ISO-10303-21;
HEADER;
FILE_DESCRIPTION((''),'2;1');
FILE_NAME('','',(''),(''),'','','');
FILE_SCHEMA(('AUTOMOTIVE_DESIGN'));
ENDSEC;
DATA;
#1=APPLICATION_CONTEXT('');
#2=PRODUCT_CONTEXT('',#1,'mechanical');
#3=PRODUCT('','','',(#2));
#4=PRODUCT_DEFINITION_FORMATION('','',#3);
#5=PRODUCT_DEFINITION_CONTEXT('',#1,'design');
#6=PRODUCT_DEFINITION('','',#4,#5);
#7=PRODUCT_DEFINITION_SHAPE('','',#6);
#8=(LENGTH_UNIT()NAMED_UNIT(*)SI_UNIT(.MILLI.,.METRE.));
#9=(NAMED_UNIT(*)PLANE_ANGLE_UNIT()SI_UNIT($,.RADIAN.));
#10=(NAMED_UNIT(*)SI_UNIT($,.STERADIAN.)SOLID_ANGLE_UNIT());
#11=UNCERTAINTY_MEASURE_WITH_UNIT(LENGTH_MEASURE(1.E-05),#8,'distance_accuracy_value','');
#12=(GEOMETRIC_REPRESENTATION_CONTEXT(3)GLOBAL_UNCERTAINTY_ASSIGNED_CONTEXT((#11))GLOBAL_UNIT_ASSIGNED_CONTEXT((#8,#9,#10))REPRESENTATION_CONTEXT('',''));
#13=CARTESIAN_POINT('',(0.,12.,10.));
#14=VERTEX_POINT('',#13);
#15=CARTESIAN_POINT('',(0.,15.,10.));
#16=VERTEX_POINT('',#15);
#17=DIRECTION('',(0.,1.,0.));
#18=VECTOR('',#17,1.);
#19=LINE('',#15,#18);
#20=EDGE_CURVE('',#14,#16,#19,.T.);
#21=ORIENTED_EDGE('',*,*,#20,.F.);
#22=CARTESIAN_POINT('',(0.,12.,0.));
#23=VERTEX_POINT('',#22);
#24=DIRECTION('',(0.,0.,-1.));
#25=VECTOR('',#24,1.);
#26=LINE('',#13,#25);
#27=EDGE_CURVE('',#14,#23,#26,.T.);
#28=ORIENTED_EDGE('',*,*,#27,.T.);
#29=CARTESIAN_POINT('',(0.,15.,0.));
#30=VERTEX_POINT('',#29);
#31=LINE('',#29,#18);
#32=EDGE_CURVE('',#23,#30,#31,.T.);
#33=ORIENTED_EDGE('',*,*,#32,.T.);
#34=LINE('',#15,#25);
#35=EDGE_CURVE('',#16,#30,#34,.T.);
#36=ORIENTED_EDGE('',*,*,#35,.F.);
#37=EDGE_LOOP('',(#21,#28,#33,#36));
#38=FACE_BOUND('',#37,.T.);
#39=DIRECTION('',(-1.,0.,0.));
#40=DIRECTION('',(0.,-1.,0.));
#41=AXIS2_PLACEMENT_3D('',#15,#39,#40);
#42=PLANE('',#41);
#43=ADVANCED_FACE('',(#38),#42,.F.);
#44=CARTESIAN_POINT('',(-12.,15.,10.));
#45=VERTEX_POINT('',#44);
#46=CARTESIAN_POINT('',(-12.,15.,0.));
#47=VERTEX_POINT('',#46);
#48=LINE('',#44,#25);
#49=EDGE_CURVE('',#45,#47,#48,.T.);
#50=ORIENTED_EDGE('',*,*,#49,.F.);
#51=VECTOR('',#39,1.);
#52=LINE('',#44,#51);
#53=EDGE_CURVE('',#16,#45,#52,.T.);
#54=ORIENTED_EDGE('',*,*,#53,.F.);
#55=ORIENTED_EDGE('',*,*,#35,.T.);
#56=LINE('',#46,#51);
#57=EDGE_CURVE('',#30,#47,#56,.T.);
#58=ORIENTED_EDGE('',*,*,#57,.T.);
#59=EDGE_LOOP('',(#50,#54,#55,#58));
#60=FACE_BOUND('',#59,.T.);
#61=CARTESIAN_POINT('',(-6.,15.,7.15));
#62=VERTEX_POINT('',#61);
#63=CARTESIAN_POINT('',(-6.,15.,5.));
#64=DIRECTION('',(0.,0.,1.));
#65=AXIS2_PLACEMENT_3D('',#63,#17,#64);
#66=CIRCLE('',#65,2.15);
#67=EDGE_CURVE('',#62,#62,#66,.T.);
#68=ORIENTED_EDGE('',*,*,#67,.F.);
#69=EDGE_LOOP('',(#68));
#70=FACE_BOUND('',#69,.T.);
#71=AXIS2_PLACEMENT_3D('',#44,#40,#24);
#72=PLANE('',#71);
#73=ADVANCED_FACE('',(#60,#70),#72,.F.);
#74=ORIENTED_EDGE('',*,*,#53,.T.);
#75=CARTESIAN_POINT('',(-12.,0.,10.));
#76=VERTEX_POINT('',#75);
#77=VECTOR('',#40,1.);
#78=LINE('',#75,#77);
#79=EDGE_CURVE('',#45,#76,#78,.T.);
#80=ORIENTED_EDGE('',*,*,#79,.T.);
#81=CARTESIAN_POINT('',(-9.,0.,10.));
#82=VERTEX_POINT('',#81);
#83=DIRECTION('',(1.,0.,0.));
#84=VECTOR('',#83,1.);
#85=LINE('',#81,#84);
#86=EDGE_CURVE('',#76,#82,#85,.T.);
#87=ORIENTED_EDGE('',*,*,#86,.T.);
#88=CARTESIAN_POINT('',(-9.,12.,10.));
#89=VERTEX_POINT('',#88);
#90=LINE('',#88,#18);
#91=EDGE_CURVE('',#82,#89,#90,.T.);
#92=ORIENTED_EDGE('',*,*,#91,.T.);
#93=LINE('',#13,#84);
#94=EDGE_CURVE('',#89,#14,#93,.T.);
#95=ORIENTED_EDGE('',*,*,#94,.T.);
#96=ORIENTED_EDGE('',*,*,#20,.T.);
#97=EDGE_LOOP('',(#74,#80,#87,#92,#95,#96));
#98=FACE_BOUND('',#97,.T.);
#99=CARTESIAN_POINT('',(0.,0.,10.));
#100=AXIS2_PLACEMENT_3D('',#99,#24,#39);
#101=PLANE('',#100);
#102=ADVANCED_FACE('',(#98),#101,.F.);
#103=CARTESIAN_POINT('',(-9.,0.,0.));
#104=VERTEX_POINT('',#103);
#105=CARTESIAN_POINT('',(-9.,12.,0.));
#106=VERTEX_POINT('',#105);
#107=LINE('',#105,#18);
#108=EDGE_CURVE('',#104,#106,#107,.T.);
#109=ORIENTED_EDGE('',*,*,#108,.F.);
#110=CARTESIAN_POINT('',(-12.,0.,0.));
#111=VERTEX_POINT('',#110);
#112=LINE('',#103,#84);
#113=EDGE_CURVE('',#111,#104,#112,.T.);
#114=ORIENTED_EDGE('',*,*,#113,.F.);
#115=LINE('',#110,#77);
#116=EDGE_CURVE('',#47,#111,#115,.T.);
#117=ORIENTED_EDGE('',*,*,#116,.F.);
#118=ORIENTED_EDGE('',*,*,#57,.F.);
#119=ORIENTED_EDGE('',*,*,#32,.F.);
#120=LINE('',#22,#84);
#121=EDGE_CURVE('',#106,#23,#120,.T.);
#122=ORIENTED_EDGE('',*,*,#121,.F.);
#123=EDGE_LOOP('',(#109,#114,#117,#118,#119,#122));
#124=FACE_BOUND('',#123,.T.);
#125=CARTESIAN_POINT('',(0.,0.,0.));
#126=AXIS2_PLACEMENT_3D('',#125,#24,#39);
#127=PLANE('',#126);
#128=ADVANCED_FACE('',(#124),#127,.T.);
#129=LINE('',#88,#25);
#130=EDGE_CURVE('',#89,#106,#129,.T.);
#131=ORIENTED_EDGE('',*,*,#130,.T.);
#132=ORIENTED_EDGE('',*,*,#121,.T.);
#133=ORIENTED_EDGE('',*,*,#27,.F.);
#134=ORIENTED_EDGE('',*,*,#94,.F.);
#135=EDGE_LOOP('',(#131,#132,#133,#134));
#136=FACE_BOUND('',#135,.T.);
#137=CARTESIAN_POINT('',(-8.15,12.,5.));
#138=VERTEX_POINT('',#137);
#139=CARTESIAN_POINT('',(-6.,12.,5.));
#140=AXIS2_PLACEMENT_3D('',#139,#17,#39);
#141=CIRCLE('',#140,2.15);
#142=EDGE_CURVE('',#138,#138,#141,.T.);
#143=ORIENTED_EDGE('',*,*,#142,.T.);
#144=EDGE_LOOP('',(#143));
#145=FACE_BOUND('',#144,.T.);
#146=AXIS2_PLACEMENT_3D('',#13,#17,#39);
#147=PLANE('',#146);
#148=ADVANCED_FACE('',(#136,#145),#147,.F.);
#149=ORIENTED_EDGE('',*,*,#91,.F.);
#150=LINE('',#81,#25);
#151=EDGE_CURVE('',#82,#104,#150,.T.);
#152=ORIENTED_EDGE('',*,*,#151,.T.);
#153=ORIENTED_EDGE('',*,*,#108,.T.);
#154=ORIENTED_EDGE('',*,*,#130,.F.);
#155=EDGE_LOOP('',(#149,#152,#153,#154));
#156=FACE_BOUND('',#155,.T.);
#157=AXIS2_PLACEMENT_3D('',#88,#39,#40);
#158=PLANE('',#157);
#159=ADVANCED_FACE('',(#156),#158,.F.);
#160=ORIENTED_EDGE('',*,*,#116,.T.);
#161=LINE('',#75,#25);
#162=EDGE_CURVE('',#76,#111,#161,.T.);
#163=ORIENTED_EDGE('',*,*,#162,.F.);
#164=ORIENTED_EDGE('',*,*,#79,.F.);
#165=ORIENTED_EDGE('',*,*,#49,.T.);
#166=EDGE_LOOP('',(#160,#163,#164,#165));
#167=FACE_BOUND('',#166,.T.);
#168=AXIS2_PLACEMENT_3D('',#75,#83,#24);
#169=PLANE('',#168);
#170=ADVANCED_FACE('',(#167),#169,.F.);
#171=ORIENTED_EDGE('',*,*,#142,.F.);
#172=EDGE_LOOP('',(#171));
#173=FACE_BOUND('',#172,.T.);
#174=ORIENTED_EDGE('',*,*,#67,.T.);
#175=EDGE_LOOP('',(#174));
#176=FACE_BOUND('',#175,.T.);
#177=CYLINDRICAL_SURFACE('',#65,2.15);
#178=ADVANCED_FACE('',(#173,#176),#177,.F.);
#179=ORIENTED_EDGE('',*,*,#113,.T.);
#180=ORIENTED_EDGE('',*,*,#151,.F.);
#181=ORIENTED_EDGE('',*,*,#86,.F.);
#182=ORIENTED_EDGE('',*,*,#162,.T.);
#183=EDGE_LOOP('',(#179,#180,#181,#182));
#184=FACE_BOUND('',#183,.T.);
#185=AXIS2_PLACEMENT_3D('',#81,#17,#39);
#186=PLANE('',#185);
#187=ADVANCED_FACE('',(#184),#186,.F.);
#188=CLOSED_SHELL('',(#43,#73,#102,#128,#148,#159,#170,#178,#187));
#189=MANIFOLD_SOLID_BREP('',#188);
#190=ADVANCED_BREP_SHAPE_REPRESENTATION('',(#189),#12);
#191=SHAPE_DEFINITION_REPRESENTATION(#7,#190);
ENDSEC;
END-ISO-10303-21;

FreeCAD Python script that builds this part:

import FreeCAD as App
import Part
import Sketcher
Q = App.Units.Quantity

doc = App.newDocument("Part")
body = doc.addObject("PartDesign::Body", "Body")

# Sketch on XY plane
sketch1 = body.newObject("Sketcher::SketchObject", "Sketch")
sketch1.AttachmentSupport = (doc.getObject("XY_Plane"), [""])
sketch1.MapMode = "FlatFace"
sketch1.addGeometry([
    Part.LineSegment(App.Vector(-12, 0, 0), App.Vector(-9, 0, 0)),  # 0
    Part.LineSegment(App.Vector(-9, 0, 0), App.Vector(-9, 12, 0)),  # 1
    Part.LineSegment(App.Vector(-9, 12, 0), App.Vector(0, 12, 0)),  # 2
    Part.LineSegment(App.Vector(0, 12, 0), App.Vector(0, 15, 0)),  # 3
    Part.LineSegment(App.Vector(0, 15, 0), App.Vector(-12, 15, 0)),  # 4
    Part.LineSegment(App.Vector(-12, 15, 0), App.Vector(-12, 0, 0)),  # 5
], False)
sketch1.addConstraint([
    Sketcher.Constraint("Coincident", 0, 2, 1, 1),
    Sketcher.Constraint("Coincident", 1, 2, 2, 1),
    Sketcher.Constraint("Coincident", 2, 2, 3, 1),
    Sketcher.Constraint("Coincident", 3, 2, 4, 1),
    Sketcher.Constraint("Coincident", 4, 2, 5, 1),
    Sketcher.Constraint("Coincident", 5, 2, 0, 1),
    Sketcher.Constraint("Horizontal", 0),
    Sketcher.Constraint("Vertical", 1),
    Sketcher.Constraint("Horizontal", 2),
    Sketcher.Constraint("Vertical", 3),
    Sketcher.Constraint("Horizontal", 4),
    Sketcher.Constraint("Vertical", 5),
    Sketcher.Constraint("PointOnObject", 0, 2, -1),
    Sketcher.Constraint("PointOnObject", 2, 2, -2),
    Sketcher.Constraint("Equal", 4, 1),
    Sketcher.Constraint("Equal", 0, 3),
    Sketcher.Constraint("DistanceX", 0, 1, 0, 2, Q("3 mm")),
    Sketcher.Constraint("DistanceX", 2, 1, 2, 2, Q("9 mm")),
])
pad1 = body.newObject("PartDesign::Pad", "Pad")
pad1.Profile = sketch1
pad1.Length = 10

# Sketch on XZ plane
sketch2 = body.newObject("Sketcher::SketchObject", "Sketch001")
sketch2.AttachmentSupport = (doc.getObject("XZ_Plane"), [""])
sketch2.MapMode = "FlatFace"
sketch2.AttachmentOffset = App.Placement(App.Vector(0, 0, -15), App.Rotation())
sketch2.addGeometry(Part.Circle(App.Vector(-6, 5, 0), App.Vector(0, 0, 1), 2.1), False)
sketch2.addConstraint([
    Sketcher.Constraint("Diameter", 0, Q("4.3 mm")),
    Sketcher.Constraint("DistanceX", 0, 3, -1, 1, Q("6 mm")),
    Sketcher.Constraint("DistanceY", -1, 1, 0, 3, Q("5 mm")),
])
doc.recompute()
hole = body.newObject("PartDesign::Hole", "Hole")
hole.Profile = sketch2
hole.ThreadType = "None"
hole.Diameter = 4.3
hole.DepthType = "ThroughAll"
hole.Reversed = True

doc.recompute()
